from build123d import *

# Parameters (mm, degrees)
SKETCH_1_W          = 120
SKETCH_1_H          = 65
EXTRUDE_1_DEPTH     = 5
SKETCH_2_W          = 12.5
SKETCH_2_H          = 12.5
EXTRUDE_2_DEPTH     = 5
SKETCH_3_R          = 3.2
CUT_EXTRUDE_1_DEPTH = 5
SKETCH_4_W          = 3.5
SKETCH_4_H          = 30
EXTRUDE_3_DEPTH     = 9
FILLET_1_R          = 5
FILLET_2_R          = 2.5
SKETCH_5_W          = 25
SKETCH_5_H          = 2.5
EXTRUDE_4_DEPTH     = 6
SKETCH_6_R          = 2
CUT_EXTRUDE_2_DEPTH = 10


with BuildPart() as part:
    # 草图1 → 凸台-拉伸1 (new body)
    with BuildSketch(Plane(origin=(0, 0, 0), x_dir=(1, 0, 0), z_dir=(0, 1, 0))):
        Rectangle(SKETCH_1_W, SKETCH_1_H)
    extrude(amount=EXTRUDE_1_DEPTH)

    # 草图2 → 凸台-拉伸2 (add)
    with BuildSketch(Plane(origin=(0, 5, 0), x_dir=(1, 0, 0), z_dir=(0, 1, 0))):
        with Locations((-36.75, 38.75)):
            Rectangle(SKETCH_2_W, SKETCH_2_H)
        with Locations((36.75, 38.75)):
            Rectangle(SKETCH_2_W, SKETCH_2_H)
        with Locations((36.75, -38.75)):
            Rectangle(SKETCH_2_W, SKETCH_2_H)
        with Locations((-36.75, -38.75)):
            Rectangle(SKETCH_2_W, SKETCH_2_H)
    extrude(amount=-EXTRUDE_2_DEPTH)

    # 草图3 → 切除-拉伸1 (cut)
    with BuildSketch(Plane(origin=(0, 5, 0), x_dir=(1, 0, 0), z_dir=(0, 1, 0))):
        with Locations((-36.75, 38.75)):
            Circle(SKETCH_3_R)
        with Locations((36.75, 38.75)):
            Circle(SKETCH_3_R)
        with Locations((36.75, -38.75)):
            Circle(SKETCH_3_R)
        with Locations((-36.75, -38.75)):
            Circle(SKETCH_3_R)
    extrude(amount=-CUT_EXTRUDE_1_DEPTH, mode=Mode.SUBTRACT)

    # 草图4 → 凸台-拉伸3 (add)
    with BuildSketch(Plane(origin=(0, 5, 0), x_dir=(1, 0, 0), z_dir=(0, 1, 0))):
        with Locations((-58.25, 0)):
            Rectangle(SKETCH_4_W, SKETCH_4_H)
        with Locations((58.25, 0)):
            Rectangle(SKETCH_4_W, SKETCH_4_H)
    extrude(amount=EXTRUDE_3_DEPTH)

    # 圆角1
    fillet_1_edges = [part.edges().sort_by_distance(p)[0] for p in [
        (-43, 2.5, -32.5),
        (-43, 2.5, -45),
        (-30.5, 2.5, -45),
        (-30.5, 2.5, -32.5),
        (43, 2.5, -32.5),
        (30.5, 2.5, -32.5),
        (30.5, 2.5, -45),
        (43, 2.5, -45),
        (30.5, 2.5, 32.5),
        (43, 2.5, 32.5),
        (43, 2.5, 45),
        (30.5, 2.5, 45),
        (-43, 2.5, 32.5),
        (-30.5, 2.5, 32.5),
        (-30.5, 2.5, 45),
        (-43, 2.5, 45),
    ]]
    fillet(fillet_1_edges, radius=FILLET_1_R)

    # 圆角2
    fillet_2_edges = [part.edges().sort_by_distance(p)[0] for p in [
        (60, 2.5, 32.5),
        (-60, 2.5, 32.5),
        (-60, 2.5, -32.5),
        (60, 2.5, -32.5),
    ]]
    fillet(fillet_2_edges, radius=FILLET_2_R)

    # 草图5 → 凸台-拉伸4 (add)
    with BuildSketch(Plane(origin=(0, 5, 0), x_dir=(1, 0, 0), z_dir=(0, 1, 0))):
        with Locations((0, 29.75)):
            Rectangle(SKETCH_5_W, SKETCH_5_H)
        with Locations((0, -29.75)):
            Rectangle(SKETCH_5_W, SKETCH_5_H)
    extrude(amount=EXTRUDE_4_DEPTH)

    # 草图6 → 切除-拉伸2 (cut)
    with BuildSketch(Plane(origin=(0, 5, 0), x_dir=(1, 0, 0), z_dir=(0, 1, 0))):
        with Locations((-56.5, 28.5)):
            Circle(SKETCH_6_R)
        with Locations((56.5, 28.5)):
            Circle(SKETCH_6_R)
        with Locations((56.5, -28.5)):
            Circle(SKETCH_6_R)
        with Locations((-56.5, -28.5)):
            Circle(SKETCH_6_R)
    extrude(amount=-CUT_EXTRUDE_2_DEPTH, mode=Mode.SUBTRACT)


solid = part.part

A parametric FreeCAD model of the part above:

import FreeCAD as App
import Part
import Sketcher

V = App.Vector


def edges_at(feature, points):
    """Names of the edges that pass closest to the given points."""
    edges = feature.Shape.Edges
    near = lambda p: min(range(len(edges)), key=lambda i: edges[i].distToShape(Part.Vertex(*p))[0])
    return sorted({f"Edge{near(p) + 1}" for p in points})


def add_polygon(sketch, points):
    """Adds a closed chain of lines whose ends are joined by coincident constraints."""
    first, n = sketch.GeometryCount, len(points)
    for a, b in zip(points, points[1:] + points[:1]):
        sketch.addGeometry(Part.LineSegment(App.Vector(*a, 0), App.Vector(*b, 0)), False)
    for i in range(n):
        sketch.addConstraint(Sketcher.Constraint("Coincident", first + i, 2, first + (i + 1) % n, 1))

doc = App.newDocument("Part")
params = doc.addObject("Spreadsheet::Sheet", "Params")
for row, (alias, value) in enumerate([
    ("sketch1_width", "120 mm"),
    ("sketch1_height", "65 mm"),
    ("pad1_length", "5 mm"),
    ("sketch2_width", "12.5 mm"),
    ("pad2_length", "5 mm"),
    ("sketch3_diameter", "6.4 mm"),
    ("pocket1_length", "5 mm"),
    ("sketch4_height", "30 mm"),
    ("sketch4_width", "3.5 mm"),
    ("pad3_length", "9 mm"),
    ("fillet_radius", "5 mm"),
    ("fillet2_radius", "2.5 mm"),
    ("sketch5_width", "25 mm"),
    ("sketch5_height", "2.5 mm"),
    ("pad4_length", "6 mm"),
    ("sketch6_diameter", "4 mm"),
    ("pocket2_length", "10 mm"),
], start=1):
    params.set(f"A{row}", alias)
    params.set(f"B{row}", "=" + value)
    params.setAlias(f"B{row}", alias)

body = doc.addObject("PartDesign::Body", "Body")

# Sketch on XZ plane
sketch1 = body.newObject("Sketcher::SketchObject", "Sketch")
sketch1.AttachmentSupport = (doc.getObject("XZ_Plane"), [""])
sketch1.MapMode = "FlatFace"
add_polygon(sketch1, [(-60, -32.5), (-60, 32.5), (60, 32.5), (60, -32.5)])  # lines 0-3
sketch1.addConstraint(Sketcher.Constraint("Vertical", 0))
sketch1.addConstraint(Sketcher.Constraint("Horizontal", 1))
sketch1.addConstraint(Sketcher.Constraint("Vertical", 2))
sketch1.addConstraint(Sketcher.Constraint("Horizontal", 3))
sketch1.addConstraint(Sketcher.Constraint("Symmetric", 0, 2, 2, 2, -1, 1))
sketch1.addConstraint(Sketcher.Constraint("DistanceX", 1, 1, 1, 2, 120.0))
sketch1.addConstraint(Sketcher.Constraint("DistanceY", 0, 1, 0, 2, 65.0))
sketch1.setExpression("Constraints[9]", "Params.sketch1_width")
sketch1.setExpression("Constraints[10]", "Params.sketch1_height")
pad1 = body.newObject("PartDesign::Pad", "Pad")
pad1.Profile = sketch1
pad1.setExpression("Length", "Params.pad1_length")
pad1.Reversed = True

# Sketch on XZ plane
sketch2 = body.newObject("Sketcher::SketchObject", "Sketch001")
sketch2.AttachmentSupport = (doc.getObject("XZ_Plane"), [""])
sketch2.MapMode = "FlatFace"
sketch2.AttachmentOffset = App.Placement(V(0, 0, -5), App.Rotation())
add_polygon(sketch2, [(-43, -45), (-43, -32.5), (-30.5, -32.5), (-30.5, -45)])  # lines 0-3
add_polygon(sketch2, [(30.5, -45), (30.5, -32.5), (43, -32.5), (43, -45)])  # lines 4-7
add_polygon(sketch2, [(30.5, 32.5), (30.5, 45), (43, 45), (43, 32.5)])  # lines 8-11
add_polygon(sketch2, [(-43, 32.5), (-43, 45), (-30.5, 45), (-30.5, 32.5)])  # lines 12-15
sketch2.addConstraint(Sketcher.Constraint("Vertical", 0))
sketch2.addConstraint(Sketcher.Constraint("Horizontal", 1))
sketch2.addConstraint(Sketcher.Constraint("Vertical", 2))
sketch2.addConstraint(Sketcher.Constraint("Horizontal", 3))
sketch2.addConstraint(Sketcher.Constraint("Vertical", 4))
sketch2.addConstraint(Sketcher.Constraint("Horizontal", 5))
sketch2.addConstraint(Sketcher.Constraint("Vertical", 6))
sketch2.addConstraint(Sketcher.Constraint("Horizontal", 7))
sketch2.addConstraint(Sketcher.Constraint("Vertical", 8))
sketch2.addConstraint(Sketcher.Constraint("Horizontal", 9))
sketch2.addConstraint(Sketcher.Constraint("Vertical", 10))
sketch2.addConstraint(Sketcher.Constraint("Horizontal", 11))
sketch2.addConstraint(Sketcher.Constraint("Vertical", 12))
sketch2.addConstraint(Sketcher.Constraint("Horizontal", 13))
sketch2.addConstraint(Sketcher.Constraint("Vertical", 14))
sketch2.addConstraint(Sketcher.Constraint("Horizontal", 15))
sketch2.addConstraint(Sketcher.Constraint("Symmetric", 2, 2, 8, 2, -1, 1))
sketch2.addConstraint(Sketcher.Constraint("Symmetric", 0, 2, 10, 2, -1, 1))
sketch2.addConstraint(Sketcher.Constraint("Symmetric", 6, 2, 12, 2, -1, 1))
sketch2.addConstraint(Sketcher.Constraint("Symmetric", 4, 2, 14, 2, -1, 1))
sketch2.addConstraint(Sketcher.Constraint("Symmetric", 1, 2, 4, 2, -2))
sketch2.addConstraint(Sketcher.Constraint("Symmetric", 3, 2, 6, 2, -2))
sketch2.addConstraint(Sketcher.Constraint("Equal", 15, 0))
sketch2.addConstraint(Sketcher.Constraint("DistanceX", 1, 1, 1, 2, 12.5))
sketch2.addConstraint(Sketcher.Constraint("DistanceX", 0, 2, -1, 1, 43.0))
sketch2.addConstraint(Sketcher.Constraint("DistanceY", 2, 2, -1, 1, 45.0))
sketch2.setExpression("Constraints[39]", "Params.sketch2_width")
pad2 = body.newObject("PartDesign::Pad", "Pad001")
pad2.Profile = sketch2
pad2.setExpression("Length", "Params.pad2_length")

# Sketch on XZ plane
sketch3 = body.newObject("Sketcher::SketchObject", "Sketch002")
sketch3.AttachmentSupport = (doc.getObject("XZ_Plane"), [""])
sketch3.MapMode = "FlatFace"
sketch3.AttachmentOffset = App.Placement(V(0, 0, -5), App.Rotation())
sketch3.addGeometry(Part.Circle(V(-36.75, -38.75, 0), V(0, 0, 1), 3.2), False)
sketch3.addGeometry(Part.Circle(V(36.75, -38.75, 0), V(0, 0, 1), 3.2), False)
sketch3.addGeometry(Part.Circle(V(36.75, 38.75, 0), V(0, 0, 1), 3.2), False)
sketch3.addGeometry(Part.Circle(V(-36.75, 38.75, 0), V(0, 0, 1), 3.2), False)
sketch3.addConstraint(Sketcher.Constraint("Equal", 0, 1))
sketch3.addConstraint(Sketcher.Constraint("Equal", 1, 2))
sketch3.addConstraint(Sketcher.Constraint("Equal", 2, 3))
sketch3.addConstraint(Sketcher.Constraint("Symmetric", 0, 3, 2, 3, -1, 1))
sketch3.addConstraint(Sketcher.Constraint("Symmetric", 1, 3, 3, 3, -1, 1))
sketch3.addConstraint(Sketcher.Constraint("Symmetric", 0, 3, 1, 3, -2))
sketch3.addConstraint(Sketcher.Constraint("Diameter", 0, 6.4))
sketch3.addConstraint(Sketcher.Constraint("DistanceX", 0, 3, 1, 3, 73.5))
sketch3.addConstraint(Sketcher.Constraint("DistanceY", 1, 3, 2, 3, 77.5))
sketch3.setExpression("Constraints[6]", "Params.sketch3_diameter")
pocket1 = body.newObject("PartDesign::Pocket", "Pocket")
pocket1.Profile = sketch3
pocket1.setExpression("Length", "Params.pocket1_length")
pocket1.Reversed = True

# Sketch on XZ plane
sketch4 = body.newObject("Sketcher::SketchObject", "Sketch003")
sketch4.AttachmentSupport = (doc.getObject("XZ_Plane"), [""])
sketch4.MapMode = "FlatFace"
sketch4.AttachmentOffset = App.Placement(V(0, 0, -5), App.Rotation())
add_polygon(sketch4, [(-60, -15), (-60, 15), (-56.5, 15), (-56.5, -15)])  # lines 0-3
add_polygon(sketch4, [(56.5, -15), (56.5, 15), (60, 15), (60, -15)])  # lines 4-7
sketch4.addConstraint(Sketcher.Constraint("Vertical", 0))
sketch4.addConstraint(Sketcher.Constraint("Horizontal", 1))
sketch4.addConstraint(Sketcher.Constraint("Vertical", 2))
sketch4.addConstraint(Sketcher.Constraint("Horizontal", 3))
sketch4.addConstraint(Sketcher.Constraint("Vertical", 4))
sketch4.addConstraint(Sketcher.Constraint("Horizontal", 5))
sketch4.addConstraint(Sketcher.Constraint("Vertical", 6))
sketch4.addConstraint(Sketcher.Constraint("Horizontal", 7))
sketch4.addConstraint(Sketcher.Constraint("Symmetric", 2, 2, 4, 2, -1, 1))
sketch4.addConstraint(Sketcher.Constraint("Symmetric", 0, 2, 6, 2, -1, 1))
sketch4.addConstraint(Sketcher.Constraint("Horizontal", 1, 2, 4, 2))
sketch4.addConstraint(Sketcher.Constraint("DistanceY", 0, 1, 0, 2, 30.0))
sketch4.addConstraint(Sketcher.Constraint("DistanceX", 1, 1, 1, 2, 3.5))
sketch4.addConstraint(Sketcher.Constraint("DistanceX", 0, 2, -1, 1, 60.0))
sketch4.setExpression("Constraints[19]", "Params.sketch4_height")
sketch4.setExpression("Constraints[20]", "Params.sketch4_width")
pad3 = body.newObject("PartDesign::Pad", "Pad002")
pad3.Profile = sketch4
pad3.setExpression("Length", "Params.pad3_length")
pad3.Reversed = True
doc.recompute()

fillet = body.newObject("PartDesign::Fillet", "Fillet")
fillet.Base = (pad3, edges_at(pad3, [
    (-43, 2.5, -32.5),
    (-43, 2.5, -45),
    (-30.5, 2.5, -45),
    (-30.5, 2.5, -32.5),
    (43, 2.5, -32.5),
    (30.5, 2.5, -32.5),
    (30.5, 2.5, -45),
    (43, 2.5, -45),
    (30.5, 2.5, 32.5),
    (43, 2.5, 32.5),
    (43, 2.5, 45),
    (30.5, 2.5, 45),
    (-43, 2.5, 32.5),
    (-30.5, 2.5, 32.5),
    (-30.5, 2.5, 45),
    (-43, 2.5, 45),
]))
fillet.setExpression("Radius", "Params.fillet_radius")
doc.recompute()

fillet2 = body.newObject("PartDesign::Fillet", "Fillet001")
fillet2.Base = (fillet, edges_at(fillet, [
    (60, 2.5, 32.5),
    (-60, 2.5, 32.5),
    (-60, 2.5, -32.5),
    (60, 2.5, -32.5),
]))
fillet2.setExpression("Radius", "Params.fillet2_radius")

# Sketch on XZ plane
sketch5 = body.newObject("Sketcher::SketchObject", "Sketch004")
sketch5.AttachmentSupport = (doc.getObject("XZ_Plane"), [""])
sketch5.MapMode = "FlatFace"
sketch5.AttachmentOffset = App.Placement(V(0, 0, -5), App.Rotation())
add_polygon(sketch5, [(-12.5, -31), (-12.5, -28.5), (12.5, -28.5), (12.5, -31)])  # lines 0-3
add_polygon(sketch5, [(-12.5, 28.5), (-12.5, 31), (12.5, 31), (12.5, 28.5)])  # lines 4-7
sketch5.addConstraint(Sketcher.Constraint("Vertical", 0))
sketch5.addConstraint(Sketcher.Constraint("Horizontal", 1))
sketch5.addConstraint(Sketcher.Constraint("Vertical", 2))
sketch5.addConstraint(Sketcher.Constraint("Horizontal", 3))
sketch5.addConstraint(Sketcher.Constraint("Vertical", 4))
sketch5.addConstraint(Sketcher.Constraint("Horizontal", 5))
sketch5.addConstraint(Sketcher.Constraint("Vertical", 6))
sketch5.addConstraint(Sketcher.Constraint("Horizontal", 7))
sketch5.addConstraint(Sketcher.Constraint("Symmetric", 2, 2, 4, 2, -1, 1))
sketch5.addConstraint(Sketcher.Constraint("Symmetric", 0, 2, 6, 2, -1, 1))
sketch5.addConstraint(Sketcher.Constraint("Vertical", 3, 2, 4, 2))
sketch5.addConstraint(Sketcher.Constraint("DistanceX", 1, 1, 1, 2, 25.0))
sketch5.addConstraint(Sketcher.Constraint("DistanceY", 0, 1, 0, 2, 2.5))
sketch5.addConstraint(Sketcher.Constraint("DistanceY", 2, 2, -1, 1, 31.0))
sketch5.setExpression("Constraints[19]", "Params.sketch5_width")
sketch5.setExpression("Constraints[20]", "Params.sketch5_height")
pad4 = body.newObject("PartDesign::Pad", "Pad003")
pad4.Profile = sketch5
pad4.setExpression("Length", "Params.pad4_length")
pad4.Reversed = True

# Sketch on XZ plane
sketch6 = body.newObject("Sketcher::SketchObject", "Sketch005")
sketch6.AttachmentSupport = (doc.getObject("XZ_Plane"), [""])
sketch6.MapMode = "FlatFace"
sketch6.AttachmentOffset = App.Placement(V(0, 0, -5), App.Rotation())
sketch6.addGeometry(Part.Circle(V(-56.5, -28.5, 0), V(0, 0, 1), 2), False)
sketch6.addGeometry(Part.Circle(V(56.5, -28.5, 0), V(0, 0, 1), 2), False)
sketch6.addGeometry(Part.Circle(V(56.5, 28.5, 0), V(0, 0, 1), 2), False)
sketch6.addGeometry(Part.Circle(V(-56.5, 28.5, 0), V(0, 0, 1), 2), False)
sketch6.addConstraint(Sketcher.Constraint("Equal", 0, 1))
sketch6.addConstraint(Sketcher.Constraint("Equal", 1, 2))
sketch6.addConstraint(Sketcher.Constraint("Equal", 2, 3))
sketch6.addConstraint(Sketcher.Constraint("Symmetric", 0, 3, 2, 3, -1, 1))
sketch6.addConstraint(Sketcher.Constraint("Symmetric", 1, 3, 3, 3, -1, 1))
sketch6.addConstraint(Sketcher.Constraint("Symmetric", 0, 3, 1, 3, -2))
sketch6.addConstraint(Sketcher.Constraint("Diameter", 0, 4.0))
sketch6.addConstraint(Sketcher.Constraint("DistanceX", 0, 3, 1, 3, 113.0))
sketch6.addConstraint(Sketcher.Constraint("DistanceY", 1, 3, 2, 3, 57.0))
sketch6.setExpression("Constraints[6]", "Params.sketch6_diameter")
pocket2 = body.newObject("PartDesign::Pocket", "Pocket001")
pocket2.Profile = sketch6
pocket2.setExpression("Length", "Params.pocket2_length")
pocket2.Reversed = True

doc.recompute()
